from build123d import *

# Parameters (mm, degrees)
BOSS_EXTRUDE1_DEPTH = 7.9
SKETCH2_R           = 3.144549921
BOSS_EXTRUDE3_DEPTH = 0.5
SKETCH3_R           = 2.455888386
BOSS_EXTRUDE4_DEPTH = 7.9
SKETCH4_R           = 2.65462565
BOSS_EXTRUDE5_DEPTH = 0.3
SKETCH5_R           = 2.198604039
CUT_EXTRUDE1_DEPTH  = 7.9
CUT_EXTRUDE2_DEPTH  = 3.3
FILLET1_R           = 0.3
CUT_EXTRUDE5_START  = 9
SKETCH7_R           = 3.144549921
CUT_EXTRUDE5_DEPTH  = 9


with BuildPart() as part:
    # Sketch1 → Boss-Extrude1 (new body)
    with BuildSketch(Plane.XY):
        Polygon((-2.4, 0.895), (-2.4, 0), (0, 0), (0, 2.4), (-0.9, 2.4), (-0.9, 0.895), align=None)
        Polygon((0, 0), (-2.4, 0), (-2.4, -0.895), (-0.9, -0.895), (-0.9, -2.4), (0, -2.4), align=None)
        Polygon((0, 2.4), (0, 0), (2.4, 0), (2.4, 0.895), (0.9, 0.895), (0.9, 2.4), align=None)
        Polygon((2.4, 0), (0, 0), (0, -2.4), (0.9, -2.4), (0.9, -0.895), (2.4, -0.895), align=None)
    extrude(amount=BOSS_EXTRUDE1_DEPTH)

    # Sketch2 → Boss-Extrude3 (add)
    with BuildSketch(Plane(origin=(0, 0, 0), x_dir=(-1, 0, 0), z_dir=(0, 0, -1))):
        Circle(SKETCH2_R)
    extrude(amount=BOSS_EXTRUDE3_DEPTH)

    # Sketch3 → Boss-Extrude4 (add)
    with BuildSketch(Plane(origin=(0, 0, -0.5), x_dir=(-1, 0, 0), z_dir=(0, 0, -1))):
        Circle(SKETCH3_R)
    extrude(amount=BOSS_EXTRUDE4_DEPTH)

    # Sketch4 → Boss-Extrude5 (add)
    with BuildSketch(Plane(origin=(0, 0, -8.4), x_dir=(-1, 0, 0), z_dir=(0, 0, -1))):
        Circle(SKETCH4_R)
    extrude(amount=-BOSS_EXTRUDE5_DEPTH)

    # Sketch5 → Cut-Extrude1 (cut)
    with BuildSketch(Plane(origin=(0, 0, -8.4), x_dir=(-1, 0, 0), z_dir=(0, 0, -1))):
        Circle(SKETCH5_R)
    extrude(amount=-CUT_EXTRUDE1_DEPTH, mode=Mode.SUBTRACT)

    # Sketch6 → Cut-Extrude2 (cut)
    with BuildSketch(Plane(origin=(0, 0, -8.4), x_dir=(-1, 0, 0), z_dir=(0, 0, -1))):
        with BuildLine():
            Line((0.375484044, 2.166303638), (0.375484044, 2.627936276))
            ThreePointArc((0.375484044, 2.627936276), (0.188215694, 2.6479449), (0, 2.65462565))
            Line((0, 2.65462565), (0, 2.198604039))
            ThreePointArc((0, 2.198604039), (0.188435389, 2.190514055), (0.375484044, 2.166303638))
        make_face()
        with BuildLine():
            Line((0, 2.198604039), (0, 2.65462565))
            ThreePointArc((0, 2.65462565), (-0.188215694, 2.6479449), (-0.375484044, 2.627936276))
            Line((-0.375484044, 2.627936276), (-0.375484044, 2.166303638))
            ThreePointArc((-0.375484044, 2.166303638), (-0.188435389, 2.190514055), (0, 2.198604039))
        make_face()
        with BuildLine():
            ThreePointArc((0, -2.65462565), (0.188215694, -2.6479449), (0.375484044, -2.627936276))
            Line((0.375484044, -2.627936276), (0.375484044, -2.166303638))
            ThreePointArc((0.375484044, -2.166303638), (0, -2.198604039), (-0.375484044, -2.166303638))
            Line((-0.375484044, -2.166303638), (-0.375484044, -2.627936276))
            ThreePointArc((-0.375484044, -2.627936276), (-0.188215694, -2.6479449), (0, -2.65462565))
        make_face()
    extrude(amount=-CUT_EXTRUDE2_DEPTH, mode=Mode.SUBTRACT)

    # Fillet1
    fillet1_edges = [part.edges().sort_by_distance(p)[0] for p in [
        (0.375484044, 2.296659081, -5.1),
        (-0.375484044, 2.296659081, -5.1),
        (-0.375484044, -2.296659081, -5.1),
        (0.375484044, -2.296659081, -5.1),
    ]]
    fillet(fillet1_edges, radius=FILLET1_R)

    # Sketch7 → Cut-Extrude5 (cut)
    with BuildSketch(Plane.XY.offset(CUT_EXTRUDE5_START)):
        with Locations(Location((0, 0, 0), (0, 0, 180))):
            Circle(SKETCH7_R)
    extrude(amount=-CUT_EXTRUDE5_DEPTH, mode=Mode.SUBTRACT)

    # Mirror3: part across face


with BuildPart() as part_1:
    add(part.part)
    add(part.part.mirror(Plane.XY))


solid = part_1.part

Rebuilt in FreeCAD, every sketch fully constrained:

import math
import FreeCAD as App
import Part
import Sketcher


def edges_at(feature, points):
    """Names of the edges that pass closest to the given points."""
    edges = feature.Shape.Edges
    near = lambda p: min(range(len(edges)), key=lambda i: edges[i].distToShape(Part.Vertex(*p))[0])
    return sorted({f"Edge{near(p) + 1}" for p in points})

doc = App.newDocument("Part")
body = doc.addObject("PartDesign::Body", "Body")

sketch1 = body.newObject("Sketcher::SketchObject", "Sketch")
sketch1.AttachmentSupport = (doc.getObject("XY_Plane"), [""])
sketch1.MapMode = "FlatFace"
sketch1.addGeometry([
    Part.LineSegment(App.Vector(-2.4, 0.895, 0), App.Vector(-2.4, -0.895, 0)),
    Part.LineSegment(App.Vector(-2.4, -0.895, 0), App.Vector(-0.9, -0.895, 0)),
    Part.LineSegment(App.Vector(-0.9, -0.895, 0), App.Vector(-0.9, -2.4, 0)),
    Part.LineSegment(App.Vector(-0.9, -2.4, 0), App.Vector(0.9, -2.4, 0)),
    Part.LineSegment(App.Vector(0.9, -2.4, 0), App.Vector(0.9, -0.895, 0)),
    Part.LineSegment(App.Vector(0.9, -0.895, 0), App.Vector(2.4, -0.895, 0)),
    Part.LineSegment(App.Vector(2.4, -0.895, 0), App.Vector(2.4, 0.895, 0)),
    Part.LineSegment(App.Vector(2.4, 0.895, 0), App.Vector(0.9, 0.895, 0)),
    Part.LineSegment(App.Vector(0.9, 0.895, 0), App.Vector(0.9, 2.4, 0)),
    Part.LineSegment(App.Vector(0.9, 2.4, 0), App.Vector(-0.9, 2.4, 0)),
    Part.LineSegment(App.Vector(-0.9, 2.4, 0), App.Vector(-0.9, 0.895, 0)),
    Part.LineSegment(App.Vector(-0.9, 0.895, 0), App.Vector(-2.4, 0.895, 0)),
], False)
sketch1.addConstraint([
    Sketcher.Constraint("Coincident", 0, 2, 1, 1),
    Sketcher.Constraint("Coincident", 1, 2, 2, 1),
    Sketcher.Constraint("Coincident", 2, 2, 3, 1),
    Sketcher.Constraint("Coincident", 3, 2, 4, 1),
    Sketcher.Constraint("Coincident", 4, 2, 5, 1),
    Sketcher.Constraint("Coincident", 5, 2, 6, 1),
    Sketcher.Constraint("Coincident", 6, 2, 7, 1),
    Sketcher.Constraint("Coincident", 7, 2, 8, 1),
    Sketcher.Constraint("Coincident", 8, 2, 9, 1),
    Sketcher.Constraint("Coincident", 9, 2, 10, 1),
    Sketcher.Constraint("Coincident", 10, 2, 11, 1),
    Sketcher.Constraint("Coincident", 11, 2, 0, 1),
    Sketcher.Constraint("Vertical", 0),
    Sketcher.Constraint("Horizontal", 1),
    Sketcher.Constraint("Vertical", 2),
    Sketcher.Constraint("Horizontal", 3),
    Sketcher.Constraint("Vertical", 4),
    Sketcher.Constraint("Horizontal", 5),
    Sketcher.Constraint("Vertical", 6),
    Sketcher.Constraint("Horizontal", 7),
    Sketcher.Constraint("Vertical", 8),
    Sketcher.Constraint("Horizontal", 9),
    Sketcher.Constraint("Vertical", 10),
    Sketcher.Constraint("Horizontal", 11),
    Sketcher.Constraint("Symmetric", 0, 2, 6, 2, -1, 1),
    Sketcher.Constraint("Symmetric", 2, 2, 8, 2, -1, 1),
    Sketcher.Constraint("Symmetric", 4, 2, 10, 2, -1, 1),
    Sketcher.Constraint("Symmetric", 1, 2, 4, 2, -2),
    Sketcher.Constraint("DistanceX", 1, 1, 1, 2, 1.5),
    Sketcher.Constraint("DistanceX", 3, 1, 3, 2, 1.8),
    Sketcher.Constraint("DistanceY", 0, 2, 0, 1, 1.79),
    Sketcher.Constraint("DistanceY", 2, 2, -1, 1, 2.4),
])
pad1 = body.newObject("PartDesign::Pad", "Pad")
pad1.Profile = sketch1
pad1.Length = 7.9

sketch2 = body.newObject("Sketcher::SketchObject", "Sketch001")
sketch2.AttachmentSupport = (doc.getObject("XY_Plane"), [""])
sketch2.MapMode = "FlatFace"
sketch2.addGeometry(Part.Circle(App.Vector(0, 0, 0), App.Vector(0, 0, 1), 3.14455), False)
sketch2.addConstraint([
    Sketcher.Constraint("Coincident", 0, 3, -1, 1),
    Sketcher.Constraint("Diameter", 0, 6.2891),
])
pad2 = body.newObject("PartDesign::Pad", "Pad001")
pad2.Profile = sketch2
pad2.Length = 0.5
pad2.Reversed = True

sketch3 = body.newObject("Sketcher::SketchObject", "Sketch002")
sketch3.AttachmentSupport = (doc.getObject("XY_Plane"), [""])
sketch3.MapMode = "FlatFace"
sketch3.AttachmentOffset = App.Placement(App.Vector(0, 0, -0.5), App.Rotation())
sketch3.addGeometry(Part.Circle(App.Vector(0, 0, 0), App.Vector(0, 0, 1), 2.455888), False)
sketch3.addConstraint([
    Sketcher.Constraint("Coincident", 0, 3, -1, 1),
    Sketcher.Constraint("Diameter", 0, 4.911777),
])
pad3 = body.newObject("PartDesign::Pad", "Pad002")
pad3.Profile = sketch3
pad3.Length = 7.9
pad3.Reversed = True

sketch4 = body.newObject("Sketcher::SketchObject", "Sketch003")
sketch4.AttachmentSupport = (doc.getObject("XY_Plane"), [""])
sketch4.MapMode = "FlatFace"
sketch4.AttachmentOffset = App.Placement(App.Vector(0, 0, -8.4), App.Rotation())
sketch4.addGeometry(Part.Circle(App.Vector(0, 0, 0), App.Vector(0, 0, 1), 2.654626), False)
sketch4.addConstraint([
    Sketcher.Constraint("Coincident", 0, 3, -1, 1),
    Sketcher.Constraint("Diameter", 0, 5.309251),
])
pad4 = body.newObject("PartDesign::Pad", "Pad003")
pad4.Profile = sketch4
pad4.Length = 0.3

sketch5 = body.newObject("Sketcher::SketchObject", "Sketch004")
sketch5.AttachmentSupport = (doc.getObject("XY_Plane"), [""])
sketch5.MapMode = "FlatFace"
sketch5.AttachmentOffset = App.Placement(App.Vector(0, 0, -8.4), App.Rotation())
sketch5.addGeometry(Part.Circle(App.Vector(0, 0, 0), App.Vector(0, 0, 1), 2.198604), False)
sketch5.addConstraint([
    Sketcher.Constraint("Coincident", 0, 3, -1, 1),
    Sketcher.Constraint("Diameter", 0, 4.397208),
])
pocket1 = body.newObject("PartDesign::Pocket", "Pocket")
pocket1.Profile = sketch5
pocket1.Length = 7.9
pocket1.Reversed = True

sketch6 = body.newObject("Sketcher::SketchObject", "Sketch005")
sketch6.AttachmentSupport = (doc.getObject("XY_Plane"), [""])
sketch6.MapMode = "FlatFace"
sketch6.AttachmentOffset = App.Placement(App.Vector(0, 0, -8.4), App.Rotation())
sketch6.addGeometry([
    Part.LineSegment(App.Vector(-0.375484, 2.166304, 0), App.Vector(-0.375484, 2.627936, 0)),
    Part.ArcOfCircle(Part.Circle(App.Vector(0, 0, 0), App.Vector(0, 0, 1), 2.654626), math.radians(90), math.radians(98.131482)),
    Part.ArcOfCircle(Part.Circle(App.Vector(0, 0, 0), App.Vector(0, 0, 1), 2.654626), math.radians(81.868518), math.radians(90)),
    Part.LineSegment(App.Vector(0.375484, 2.627936, 0), App.Vector(0.375484, 2.166304, 0)),
    Part.ArcOfCircle(Part.Circle(App.Vector(0, 0, 0), App.Vector(0, 0, 1), 2.198604), math.radians(80.166656), math.radians(90)),
    Part.ArcOfCircle(Part.Circle(App.Vector(0, 0, 0), App.Vector(0, 0, 1), 2.198604), math.radians(90), math.radians(99.833344)),
    Part.ArcOfCircle(Part.Circle(App.Vector(0, 0, 0), App.Vector(0, 0, 1), 2.654626), math.radians(-98.131482), math.radians(-90)),
    Part.LineSegment(App.Vector(-0.375484, -2.627936, 0), App.Vector(-0.375484, -2.166304, 0)),
    Part.ArcOfCircle(Part.Circle(App.Vector(0, 0, 0), App.Vector(0, 0, 1), 2.198604), math.radians(-99.833344), math.radians(-80.166656)),
    Part.LineSegment(App.Vector(0.375484, -2.166304, 0), App.Vector(0.375484, -2.627936, 0)),
    Part.ArcOfCircle(Part.Circle(App.Vector(0, 0, 0), App.Vector(0, 0, 1), 2.654626), math.radians(-90), math.radians(-81.868518)),
], False)
sketch6.addConstraint([
    Sketcher.Constraint("Coincident", 0, 2, 1, 2),
    Sketcher.Constraint("Tangent", 1, 1, 2, 2),
    Sketcher.Constraint("Coincident", 2, 1, 3, 1),
    Sketcher.Constraint("Coincident", 3, 2, 4, 1),
    Sketcher.Constraint("Tangent", 4, 2, 5, 1),
    Sketcher.Constraint("Coincident", 5, 2, 0, 1),
    Sketcher.Constraint("Coincident", 6, 1, 7, 1),
    Sketcher.Constraint("Coincident", 7, 2, 8, 1),
    Sketcher.Constraint("Coincident", 8, 2, 9, 1),
    Sketcher.Constraint("Coincident", 9, 2, 10, 2),
    Sketcher.Constraint("Tangent", 10, 1, 6, 2),
    Sketcher.Constraint("Vertical", 0),
    Sketcher.Constraint("Vertical", 3),
    Sketcher.Constraint("Vertical", 7),
    Sketcher.Constraint("Vertical", 9),
    Sketcher.Constraint("Coincident", 1, 3, -1, 1),
    Sketcher.Constraint("Coincident", 4, 3, -1, 1),
    Sketcher.Constraint("Coincident", 6, 3, -1, 1),
    Sketcher.Constraint("Coincident", 8, 3, -1, 1),
    Sketcher.Constraint("Equal", 1, 2),
    Sketcher.Constraint("Equal", 4, 5),
    Sketcher.Constraint("Equal", 2, 6),
    Sketcher.Constraint("Equal", 5, 8),
    Sketcher.Constraint("Equal", 6, 10),
    Sketcher.Constraint("PointOnObject", 1, 1, -2),
    Sketcher.Constraint("PointOnObject", 4, 2, -2),
    Sketcher.Constraint("PointOnObject", 10, 1, -2),
    Sketcher.Constraint("Horizontal", 0, 2, 2, 1),
    Sketcher.Constraint("Horizontal", 7, 2, 8, 2),
    Sketcher.Constraint("Vertical", 5, 2, 6, 1),
    Sketcher.Constraint("Radius", 1, 2.654626),
    Sketcher.Constraint("Radius", 4, 2.198604),
    Sketcher.Constraint("DistanceY", 3, 2, 4, 2, 0.0323),
])
pocket2 = body.newObject("PartDesign::Pocket", "Pocket001")
pocket2.Profile = sketch6
pocket2.Length = 3.3
pocket2.Reversed = True
doc.recompute()

fillet = body.newObject("PartDesign::Fillet", "Fillet")
fillet.Base = (pocket2, edges_at(pocket2, [
    (0.375, 2.297, -5.1),
    (-0.375, 2.297, -5.1),
    (-0.375, -2.297, -5.1),
    (0.375, -2.297, -5.1),
]))
fillet.Radius = 0.3

sketch7 = body.newObject("Sketcher::SketchObject", "Sketch006")
sketch7.AttachmentSupport = (doc.getObject("XY_Plane"), [""])
sketch7.MapMode = "FlatFace"
sketch7.AttachmentOffset = App.Placement(App.Vector(0, 0, 9), App.Rotation())
sketch7.addGeometry(Part.Circle(App.Vector(0, 0, 0), App.Vector(0, 0, 1), 3.14455), False)
sketch7.addConstraint([
    Sketcher.Constraint("Coincident", 0, 3, -1, 1),
    Sketcher.Constraint("Diameter", 0, 6.2891),
])
pocket3 = body.newObject("PartDesign::Pocket", "Pocket002")
pocket3.Profile = sketch7
pocket3.Length = 9
body2 = doc.addObject("PartDesign::Body", "Body001")
doc.recompute()

body2.BaseFeature = body
doc.recompute()

mirroring = doc.addObject("Part::Mirroring", "Mirroring")
mirroring.Source = body
mirroring.Base = App.Vector(0, 0, 0)
mirroring.Normal = App.Vector(0, 0, 1)
body3 = doc.addObject("PartDesign::Body", "Body002")
body3.BaseFeature = mirroring
boolean = body2.newObject("PartDesign::Boolean", "Boolean")
boolean.Type = "Fuse"
boolean.addObjects([body3])
doc.recompute()
mirroring.Visibility = False

doc.recompute()
